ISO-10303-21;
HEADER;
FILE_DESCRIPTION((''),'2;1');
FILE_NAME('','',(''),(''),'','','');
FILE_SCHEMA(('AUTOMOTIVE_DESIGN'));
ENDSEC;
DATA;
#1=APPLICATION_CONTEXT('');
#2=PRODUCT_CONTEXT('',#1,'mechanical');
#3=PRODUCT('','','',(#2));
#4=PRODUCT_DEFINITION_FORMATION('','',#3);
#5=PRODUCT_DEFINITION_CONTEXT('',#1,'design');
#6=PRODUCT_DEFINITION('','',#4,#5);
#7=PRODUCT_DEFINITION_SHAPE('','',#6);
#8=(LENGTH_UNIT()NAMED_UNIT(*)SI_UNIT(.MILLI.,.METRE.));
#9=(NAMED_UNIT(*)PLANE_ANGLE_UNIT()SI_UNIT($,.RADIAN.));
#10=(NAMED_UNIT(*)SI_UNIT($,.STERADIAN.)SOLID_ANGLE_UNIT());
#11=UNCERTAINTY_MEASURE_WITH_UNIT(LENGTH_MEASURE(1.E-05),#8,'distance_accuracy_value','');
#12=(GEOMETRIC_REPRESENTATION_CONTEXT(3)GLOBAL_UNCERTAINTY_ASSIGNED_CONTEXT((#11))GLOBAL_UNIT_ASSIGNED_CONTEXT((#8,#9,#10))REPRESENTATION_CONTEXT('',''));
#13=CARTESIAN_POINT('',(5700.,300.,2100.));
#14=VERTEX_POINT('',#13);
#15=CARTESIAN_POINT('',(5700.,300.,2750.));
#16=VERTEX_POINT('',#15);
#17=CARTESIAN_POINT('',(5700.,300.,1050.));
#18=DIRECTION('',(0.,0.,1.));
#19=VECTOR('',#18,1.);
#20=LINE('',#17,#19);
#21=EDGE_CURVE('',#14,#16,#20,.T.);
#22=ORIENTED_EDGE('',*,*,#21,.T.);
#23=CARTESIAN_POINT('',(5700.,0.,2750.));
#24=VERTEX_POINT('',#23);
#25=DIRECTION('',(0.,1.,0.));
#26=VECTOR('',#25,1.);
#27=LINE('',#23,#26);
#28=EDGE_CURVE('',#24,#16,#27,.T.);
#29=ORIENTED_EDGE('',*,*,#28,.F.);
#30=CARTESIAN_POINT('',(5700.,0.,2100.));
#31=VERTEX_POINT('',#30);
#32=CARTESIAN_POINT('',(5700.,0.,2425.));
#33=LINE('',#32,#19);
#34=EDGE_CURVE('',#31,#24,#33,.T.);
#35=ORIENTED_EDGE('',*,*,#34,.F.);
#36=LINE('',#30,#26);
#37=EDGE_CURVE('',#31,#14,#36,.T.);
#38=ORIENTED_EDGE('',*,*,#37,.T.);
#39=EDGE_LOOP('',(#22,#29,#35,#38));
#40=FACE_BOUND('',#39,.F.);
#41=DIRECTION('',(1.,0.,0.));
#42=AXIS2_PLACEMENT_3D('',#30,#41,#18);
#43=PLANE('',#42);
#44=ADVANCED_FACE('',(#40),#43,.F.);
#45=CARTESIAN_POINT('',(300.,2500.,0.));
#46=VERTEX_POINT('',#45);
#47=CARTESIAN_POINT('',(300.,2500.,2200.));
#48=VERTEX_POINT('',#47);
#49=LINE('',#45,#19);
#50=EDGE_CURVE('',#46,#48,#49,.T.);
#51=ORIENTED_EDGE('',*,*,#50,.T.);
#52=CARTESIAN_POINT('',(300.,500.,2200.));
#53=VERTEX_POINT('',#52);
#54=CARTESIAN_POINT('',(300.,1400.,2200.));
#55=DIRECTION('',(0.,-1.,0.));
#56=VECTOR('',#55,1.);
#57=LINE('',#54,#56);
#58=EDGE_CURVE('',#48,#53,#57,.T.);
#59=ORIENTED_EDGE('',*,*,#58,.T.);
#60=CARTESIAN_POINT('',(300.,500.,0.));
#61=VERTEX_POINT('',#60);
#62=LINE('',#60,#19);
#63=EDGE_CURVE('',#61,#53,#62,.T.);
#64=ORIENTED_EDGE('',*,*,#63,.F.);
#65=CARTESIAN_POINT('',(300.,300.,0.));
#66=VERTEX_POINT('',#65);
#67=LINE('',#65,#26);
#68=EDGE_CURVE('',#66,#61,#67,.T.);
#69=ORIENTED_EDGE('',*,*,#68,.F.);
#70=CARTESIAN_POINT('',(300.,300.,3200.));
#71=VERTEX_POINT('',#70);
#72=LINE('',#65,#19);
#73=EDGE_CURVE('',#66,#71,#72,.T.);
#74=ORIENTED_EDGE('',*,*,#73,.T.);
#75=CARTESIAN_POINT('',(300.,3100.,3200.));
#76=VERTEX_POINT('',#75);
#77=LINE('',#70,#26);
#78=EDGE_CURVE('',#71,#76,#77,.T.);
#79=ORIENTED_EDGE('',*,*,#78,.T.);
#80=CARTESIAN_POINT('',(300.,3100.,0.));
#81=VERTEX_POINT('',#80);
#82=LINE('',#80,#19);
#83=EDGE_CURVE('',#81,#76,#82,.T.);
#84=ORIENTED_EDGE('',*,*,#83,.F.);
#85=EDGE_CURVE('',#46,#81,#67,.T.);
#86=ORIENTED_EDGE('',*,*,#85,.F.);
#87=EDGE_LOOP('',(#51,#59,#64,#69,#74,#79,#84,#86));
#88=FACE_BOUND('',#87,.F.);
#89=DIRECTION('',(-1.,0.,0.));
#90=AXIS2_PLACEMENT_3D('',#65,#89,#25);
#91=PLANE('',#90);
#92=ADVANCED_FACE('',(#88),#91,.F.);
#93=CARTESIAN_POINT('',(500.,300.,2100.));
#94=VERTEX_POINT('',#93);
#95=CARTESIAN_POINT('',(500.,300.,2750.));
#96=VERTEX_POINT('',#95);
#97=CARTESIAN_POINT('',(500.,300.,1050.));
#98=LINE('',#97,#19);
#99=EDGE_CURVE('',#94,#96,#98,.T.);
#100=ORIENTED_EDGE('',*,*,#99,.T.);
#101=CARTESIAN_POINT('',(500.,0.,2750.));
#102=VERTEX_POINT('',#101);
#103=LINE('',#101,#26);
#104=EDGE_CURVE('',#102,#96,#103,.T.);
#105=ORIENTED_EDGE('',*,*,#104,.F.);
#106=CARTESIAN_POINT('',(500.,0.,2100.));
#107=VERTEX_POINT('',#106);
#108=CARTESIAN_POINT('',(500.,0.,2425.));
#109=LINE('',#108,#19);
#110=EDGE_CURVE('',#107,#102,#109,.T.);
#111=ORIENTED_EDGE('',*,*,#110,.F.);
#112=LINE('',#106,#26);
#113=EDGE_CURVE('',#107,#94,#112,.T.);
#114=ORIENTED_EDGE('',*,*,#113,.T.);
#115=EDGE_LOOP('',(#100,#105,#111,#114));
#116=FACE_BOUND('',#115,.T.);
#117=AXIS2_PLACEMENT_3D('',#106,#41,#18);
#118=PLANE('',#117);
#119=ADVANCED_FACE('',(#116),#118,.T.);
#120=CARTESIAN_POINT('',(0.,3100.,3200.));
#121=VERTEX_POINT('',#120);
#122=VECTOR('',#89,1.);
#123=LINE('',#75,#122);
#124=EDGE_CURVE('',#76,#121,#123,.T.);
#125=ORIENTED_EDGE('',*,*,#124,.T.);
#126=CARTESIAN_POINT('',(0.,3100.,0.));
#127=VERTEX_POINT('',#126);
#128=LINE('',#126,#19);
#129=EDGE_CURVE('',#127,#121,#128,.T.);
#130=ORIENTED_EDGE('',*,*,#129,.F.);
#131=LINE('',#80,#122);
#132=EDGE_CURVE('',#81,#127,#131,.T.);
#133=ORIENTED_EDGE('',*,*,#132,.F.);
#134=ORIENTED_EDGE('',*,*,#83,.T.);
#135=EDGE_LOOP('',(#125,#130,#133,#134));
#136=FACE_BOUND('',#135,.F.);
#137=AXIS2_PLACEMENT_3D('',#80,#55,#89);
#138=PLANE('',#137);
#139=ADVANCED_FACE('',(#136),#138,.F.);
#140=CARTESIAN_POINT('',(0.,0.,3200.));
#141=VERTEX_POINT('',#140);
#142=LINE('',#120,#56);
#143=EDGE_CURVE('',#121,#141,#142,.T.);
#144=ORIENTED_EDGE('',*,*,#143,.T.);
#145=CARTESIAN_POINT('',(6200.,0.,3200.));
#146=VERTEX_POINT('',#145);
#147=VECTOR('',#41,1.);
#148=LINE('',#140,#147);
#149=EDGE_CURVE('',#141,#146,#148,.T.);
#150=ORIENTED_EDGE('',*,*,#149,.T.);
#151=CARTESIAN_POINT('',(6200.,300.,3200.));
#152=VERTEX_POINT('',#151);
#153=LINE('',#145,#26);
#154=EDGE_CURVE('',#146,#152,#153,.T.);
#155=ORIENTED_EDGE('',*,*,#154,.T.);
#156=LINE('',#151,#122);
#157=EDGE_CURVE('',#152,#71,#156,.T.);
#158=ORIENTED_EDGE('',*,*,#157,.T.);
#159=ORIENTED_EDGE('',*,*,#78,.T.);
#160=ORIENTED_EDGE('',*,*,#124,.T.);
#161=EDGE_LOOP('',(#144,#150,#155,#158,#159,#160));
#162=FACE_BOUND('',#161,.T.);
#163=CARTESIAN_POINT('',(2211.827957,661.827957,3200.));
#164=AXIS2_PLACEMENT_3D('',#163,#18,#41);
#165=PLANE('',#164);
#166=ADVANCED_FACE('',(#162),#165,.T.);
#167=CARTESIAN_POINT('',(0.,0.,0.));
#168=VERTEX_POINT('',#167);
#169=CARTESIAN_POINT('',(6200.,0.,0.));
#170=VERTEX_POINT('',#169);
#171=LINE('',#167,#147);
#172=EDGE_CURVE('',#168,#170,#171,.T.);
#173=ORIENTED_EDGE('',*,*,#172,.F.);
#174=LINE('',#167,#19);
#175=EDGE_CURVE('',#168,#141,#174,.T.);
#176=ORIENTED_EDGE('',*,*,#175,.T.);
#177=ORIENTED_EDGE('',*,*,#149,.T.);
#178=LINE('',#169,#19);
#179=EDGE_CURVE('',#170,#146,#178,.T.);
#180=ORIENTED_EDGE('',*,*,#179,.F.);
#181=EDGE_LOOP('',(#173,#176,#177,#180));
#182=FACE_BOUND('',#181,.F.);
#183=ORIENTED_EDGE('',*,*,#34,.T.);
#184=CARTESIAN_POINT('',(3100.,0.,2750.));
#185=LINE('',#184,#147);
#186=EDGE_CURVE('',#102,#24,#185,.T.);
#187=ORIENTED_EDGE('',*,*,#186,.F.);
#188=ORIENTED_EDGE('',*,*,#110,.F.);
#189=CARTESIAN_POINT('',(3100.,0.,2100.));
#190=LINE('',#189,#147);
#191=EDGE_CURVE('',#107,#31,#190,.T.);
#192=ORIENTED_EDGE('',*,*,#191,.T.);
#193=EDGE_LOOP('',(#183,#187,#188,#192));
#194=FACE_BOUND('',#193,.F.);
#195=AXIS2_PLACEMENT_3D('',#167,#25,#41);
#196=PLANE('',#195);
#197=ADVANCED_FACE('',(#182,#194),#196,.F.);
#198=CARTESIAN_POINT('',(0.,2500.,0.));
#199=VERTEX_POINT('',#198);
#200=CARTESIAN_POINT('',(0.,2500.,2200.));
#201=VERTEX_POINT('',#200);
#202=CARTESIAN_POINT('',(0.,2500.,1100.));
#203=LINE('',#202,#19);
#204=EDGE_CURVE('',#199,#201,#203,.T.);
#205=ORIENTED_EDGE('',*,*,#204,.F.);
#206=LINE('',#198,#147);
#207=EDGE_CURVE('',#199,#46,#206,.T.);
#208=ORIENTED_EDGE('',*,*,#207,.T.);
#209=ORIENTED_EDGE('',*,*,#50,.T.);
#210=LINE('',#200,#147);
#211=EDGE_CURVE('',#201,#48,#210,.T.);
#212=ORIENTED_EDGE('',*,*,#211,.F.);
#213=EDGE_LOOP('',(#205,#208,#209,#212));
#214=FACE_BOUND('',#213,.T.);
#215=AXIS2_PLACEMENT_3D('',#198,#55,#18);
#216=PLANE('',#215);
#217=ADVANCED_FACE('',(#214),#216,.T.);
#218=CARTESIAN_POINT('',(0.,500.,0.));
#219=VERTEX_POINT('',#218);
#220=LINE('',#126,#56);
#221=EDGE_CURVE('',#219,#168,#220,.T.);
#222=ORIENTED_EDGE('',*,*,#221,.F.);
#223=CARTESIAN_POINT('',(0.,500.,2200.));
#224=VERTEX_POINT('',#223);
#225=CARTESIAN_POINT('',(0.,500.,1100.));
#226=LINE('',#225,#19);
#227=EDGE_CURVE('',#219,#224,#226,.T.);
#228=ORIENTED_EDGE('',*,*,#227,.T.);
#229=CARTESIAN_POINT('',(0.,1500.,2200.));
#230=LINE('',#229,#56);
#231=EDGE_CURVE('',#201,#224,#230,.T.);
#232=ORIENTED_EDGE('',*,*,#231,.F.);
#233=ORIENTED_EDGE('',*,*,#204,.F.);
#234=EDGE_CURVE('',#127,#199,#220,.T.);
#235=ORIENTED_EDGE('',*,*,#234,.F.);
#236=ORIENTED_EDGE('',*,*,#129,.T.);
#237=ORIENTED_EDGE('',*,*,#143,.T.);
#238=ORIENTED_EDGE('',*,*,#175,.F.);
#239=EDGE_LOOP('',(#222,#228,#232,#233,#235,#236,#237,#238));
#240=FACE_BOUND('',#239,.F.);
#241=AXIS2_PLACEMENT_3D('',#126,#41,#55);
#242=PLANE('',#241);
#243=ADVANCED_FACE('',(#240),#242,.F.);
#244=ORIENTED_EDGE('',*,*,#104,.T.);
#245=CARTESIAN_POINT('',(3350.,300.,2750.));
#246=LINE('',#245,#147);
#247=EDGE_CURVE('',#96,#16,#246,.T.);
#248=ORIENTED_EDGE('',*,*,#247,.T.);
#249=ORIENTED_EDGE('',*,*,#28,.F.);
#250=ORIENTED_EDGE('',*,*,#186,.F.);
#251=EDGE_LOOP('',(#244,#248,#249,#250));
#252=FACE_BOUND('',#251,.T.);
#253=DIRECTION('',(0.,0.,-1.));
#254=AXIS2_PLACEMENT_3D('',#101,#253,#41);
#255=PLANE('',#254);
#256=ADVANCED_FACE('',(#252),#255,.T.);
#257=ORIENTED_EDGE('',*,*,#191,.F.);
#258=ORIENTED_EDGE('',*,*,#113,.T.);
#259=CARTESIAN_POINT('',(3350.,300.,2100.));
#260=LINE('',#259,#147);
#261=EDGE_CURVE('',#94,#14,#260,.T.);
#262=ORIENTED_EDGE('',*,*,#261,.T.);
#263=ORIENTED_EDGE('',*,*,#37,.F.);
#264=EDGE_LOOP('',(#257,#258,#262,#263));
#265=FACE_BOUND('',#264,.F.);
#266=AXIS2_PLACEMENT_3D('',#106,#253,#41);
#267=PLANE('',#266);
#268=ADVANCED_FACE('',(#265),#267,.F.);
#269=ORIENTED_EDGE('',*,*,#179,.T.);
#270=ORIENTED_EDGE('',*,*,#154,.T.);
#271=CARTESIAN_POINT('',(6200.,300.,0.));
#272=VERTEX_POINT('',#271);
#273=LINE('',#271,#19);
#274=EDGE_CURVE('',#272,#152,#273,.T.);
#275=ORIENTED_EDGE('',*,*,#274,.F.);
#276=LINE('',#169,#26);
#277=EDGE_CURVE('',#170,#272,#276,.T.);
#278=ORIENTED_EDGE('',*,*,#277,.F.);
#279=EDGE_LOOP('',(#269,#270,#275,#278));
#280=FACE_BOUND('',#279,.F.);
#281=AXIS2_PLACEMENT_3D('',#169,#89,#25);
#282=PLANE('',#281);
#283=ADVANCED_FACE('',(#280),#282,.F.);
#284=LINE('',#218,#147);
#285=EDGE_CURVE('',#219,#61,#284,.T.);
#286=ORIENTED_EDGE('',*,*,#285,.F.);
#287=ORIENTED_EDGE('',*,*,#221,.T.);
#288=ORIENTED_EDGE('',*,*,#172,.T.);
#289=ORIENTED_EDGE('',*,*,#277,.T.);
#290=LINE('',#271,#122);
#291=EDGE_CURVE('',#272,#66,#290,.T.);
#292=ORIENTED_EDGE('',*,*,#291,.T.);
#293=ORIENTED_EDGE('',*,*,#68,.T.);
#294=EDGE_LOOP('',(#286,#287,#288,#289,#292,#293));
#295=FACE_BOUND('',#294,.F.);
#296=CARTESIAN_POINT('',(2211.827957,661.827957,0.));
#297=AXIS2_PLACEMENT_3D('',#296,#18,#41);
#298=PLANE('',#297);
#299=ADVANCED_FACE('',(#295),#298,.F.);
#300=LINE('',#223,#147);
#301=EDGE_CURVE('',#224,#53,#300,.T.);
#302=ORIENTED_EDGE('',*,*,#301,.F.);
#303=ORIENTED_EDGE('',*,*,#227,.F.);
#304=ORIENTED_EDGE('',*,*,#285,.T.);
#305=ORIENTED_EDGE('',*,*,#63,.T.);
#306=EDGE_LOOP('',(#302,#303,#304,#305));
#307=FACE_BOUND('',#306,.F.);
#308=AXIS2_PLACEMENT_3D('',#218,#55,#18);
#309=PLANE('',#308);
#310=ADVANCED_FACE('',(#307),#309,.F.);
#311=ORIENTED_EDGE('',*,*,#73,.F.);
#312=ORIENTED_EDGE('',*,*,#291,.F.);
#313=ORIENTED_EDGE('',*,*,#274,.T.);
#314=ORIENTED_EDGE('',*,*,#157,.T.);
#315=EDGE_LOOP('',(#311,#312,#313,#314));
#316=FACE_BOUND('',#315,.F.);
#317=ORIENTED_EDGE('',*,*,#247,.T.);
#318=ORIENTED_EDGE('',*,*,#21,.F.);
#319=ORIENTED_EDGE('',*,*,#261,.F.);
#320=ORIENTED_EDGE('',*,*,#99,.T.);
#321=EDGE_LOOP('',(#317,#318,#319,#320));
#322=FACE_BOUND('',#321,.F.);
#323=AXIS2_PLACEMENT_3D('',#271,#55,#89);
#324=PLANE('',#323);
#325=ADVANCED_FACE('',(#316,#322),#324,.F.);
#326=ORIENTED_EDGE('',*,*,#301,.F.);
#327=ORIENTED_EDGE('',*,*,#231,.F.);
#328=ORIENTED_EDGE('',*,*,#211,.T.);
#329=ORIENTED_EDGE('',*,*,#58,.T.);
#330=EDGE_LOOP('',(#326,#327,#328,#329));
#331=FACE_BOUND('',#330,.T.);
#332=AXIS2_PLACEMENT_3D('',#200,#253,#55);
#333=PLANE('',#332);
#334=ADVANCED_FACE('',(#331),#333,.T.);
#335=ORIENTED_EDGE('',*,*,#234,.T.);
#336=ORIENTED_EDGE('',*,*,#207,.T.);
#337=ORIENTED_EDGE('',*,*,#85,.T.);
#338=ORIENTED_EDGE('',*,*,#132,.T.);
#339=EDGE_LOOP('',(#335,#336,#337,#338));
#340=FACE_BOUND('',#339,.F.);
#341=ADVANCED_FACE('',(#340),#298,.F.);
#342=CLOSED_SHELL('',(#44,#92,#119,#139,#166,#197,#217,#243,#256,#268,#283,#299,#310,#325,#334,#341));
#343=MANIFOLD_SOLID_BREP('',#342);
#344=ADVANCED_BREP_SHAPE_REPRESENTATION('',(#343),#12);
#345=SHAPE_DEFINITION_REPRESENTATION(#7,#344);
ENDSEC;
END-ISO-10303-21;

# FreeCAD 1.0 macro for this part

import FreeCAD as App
import Part
import Sketcher
from FreeCAD import Vector
Q = App.Units.Quantity


def add_polygon(sketch, points):
    """Adds a closed chain of lines whose ends are joined by coincident constraints."""
    first, n = sketch.GeometryCount, len(points)
    for a, b in zip(points, points[1:] + points[:1]):
        sketch.addGeometry(Part.LineSegment(App.Vector(*a, 0), App.Vector(*b, 0)), False)
    for i in range(n):
        sketch.addConstraint(Sketcher.Constraint("Coincident", first + i, 2, first + (i + 1) % n, 1))

doc = App.newDocument("Part")
body = doc.addObject("PartDesign::Body", "Body")

sketch1 = body.newObject("Sketcher::SketchObject", "Sketch")
sketch1.AttachmentSupport = (doc.getObject("XY_Plane"), [""])
sketch1.MapMode = "FlatFace"
add_polygon(sketch1, [(0, 0), (6200, 0), (6200, 300), (300, 300), (300, 3100), (0, 3100)])
sketch1.addConstraint([
    Sketcher.Constraint("Horizontal", 0),
    Sketcher.Constraint("Vertical", 1),
    Sketcher.Constraint("Horizontal", 2),
    Sketcher.Constraint("Vertical", 3),
    Sketcher.Constraint("Horizontal", 4),
    Sketcher.Constraint("Vertical", 5),
    Sketcher.Constraint("Coincident", 5, 2, -1, 1),
    Sketcher.Constraint("Equal", 4, 1),
    Sketcher.Constraint("DistanceX", 0, 1, 0, 2, Q("6200 mm")),
    Sketcher.Constraint("DistanceX", 2, 2, 2, 1, Q("5900 mm")),
    Sketcher.Constraint("DistanceY", 3, 1, 3, 2, Q("2800 mm")),
])
pad1 = body.newObject("PartDesign::Pad", "Pad")
pad1.Profile = sketch1
pad1.Length = 3200

sketch2 = body.newObject("Sketcher::SketchObject", "Sketch001")
sketch2.AttachmentSupport = (doc.getObject("YZ_Plane"), [""])
sketch2.MapMode = "FlatFace"
add_polygon(sketch2, [(2500, 2200), (2500, 0), (500, 0), (500, 2200)])
sketch2.addConstraint([
    Sketcher.Constraint("Vertical", 0),
    Sketcher.Constraint("Horizontal", 1),
    Sketcher.Constraint("Vertical", 2),
    Sketcher.Constraint("Horizontal", 3),
    Sketcher.Constraint("PointOnObject", 0, 2, -1),
    Sketcher.Constraint("DistanceX", 1, 2, 1, 1, Q("2000 mm")),
    Sketcher.Constraint("DistanceY", 0, 2, 0, 1, Q("2200 mm")),
    Sketcher.Constraint("DistanceX", -1, 1, 0, 2, Q("2500 mm")),
])
pocket1 = body.newObject("PartDesign::Pocket", "Pocket")
pocket1.Profile = sketch2
pocket1.Length = 1000
pocket1.Reversed = True

sketch3 = body.newObject("Sketcher::SketchObject", "Sketch002")
sketch3.AttachmentSupport = (doc.getObject("XZ_Plane"), [""])
sketch3.MapMode = "FlatFace"
add_polygon(sketch3, [(500, 2750), (500, 2100), (5700, 2100), (5700, 2750)])
sketch3.addConstraint([
    Sketcher.Constraint("Vertical", 0),
    Sketcher.Constraint("Horizontal", 1),
    Sketcher.Constraint("Vertical", 2),
    Sketcher.Constraint("Horizontal", 3),
    Sketcher.Constraint("DistanceX", 1, 1, 1, 2, Q("5200 mm")),
    Sketcher.Constraint("DistanceY", 0, 2, 0, 1, Q("650 mm")),
    Sketcher.Constraint("DistanceX", -1, 1, 0, 2, Q("500 mm")),
    Sketcher.Constraint("DistanceY", -1, 1, 0, 2, Q("2100 mm")),
])
pocket2 = body.newObject("PartDesign::Pocket", "Pocket001")
pocket2.Profile = sketch3
pocket2.Length = 1000

doc.recompute()
